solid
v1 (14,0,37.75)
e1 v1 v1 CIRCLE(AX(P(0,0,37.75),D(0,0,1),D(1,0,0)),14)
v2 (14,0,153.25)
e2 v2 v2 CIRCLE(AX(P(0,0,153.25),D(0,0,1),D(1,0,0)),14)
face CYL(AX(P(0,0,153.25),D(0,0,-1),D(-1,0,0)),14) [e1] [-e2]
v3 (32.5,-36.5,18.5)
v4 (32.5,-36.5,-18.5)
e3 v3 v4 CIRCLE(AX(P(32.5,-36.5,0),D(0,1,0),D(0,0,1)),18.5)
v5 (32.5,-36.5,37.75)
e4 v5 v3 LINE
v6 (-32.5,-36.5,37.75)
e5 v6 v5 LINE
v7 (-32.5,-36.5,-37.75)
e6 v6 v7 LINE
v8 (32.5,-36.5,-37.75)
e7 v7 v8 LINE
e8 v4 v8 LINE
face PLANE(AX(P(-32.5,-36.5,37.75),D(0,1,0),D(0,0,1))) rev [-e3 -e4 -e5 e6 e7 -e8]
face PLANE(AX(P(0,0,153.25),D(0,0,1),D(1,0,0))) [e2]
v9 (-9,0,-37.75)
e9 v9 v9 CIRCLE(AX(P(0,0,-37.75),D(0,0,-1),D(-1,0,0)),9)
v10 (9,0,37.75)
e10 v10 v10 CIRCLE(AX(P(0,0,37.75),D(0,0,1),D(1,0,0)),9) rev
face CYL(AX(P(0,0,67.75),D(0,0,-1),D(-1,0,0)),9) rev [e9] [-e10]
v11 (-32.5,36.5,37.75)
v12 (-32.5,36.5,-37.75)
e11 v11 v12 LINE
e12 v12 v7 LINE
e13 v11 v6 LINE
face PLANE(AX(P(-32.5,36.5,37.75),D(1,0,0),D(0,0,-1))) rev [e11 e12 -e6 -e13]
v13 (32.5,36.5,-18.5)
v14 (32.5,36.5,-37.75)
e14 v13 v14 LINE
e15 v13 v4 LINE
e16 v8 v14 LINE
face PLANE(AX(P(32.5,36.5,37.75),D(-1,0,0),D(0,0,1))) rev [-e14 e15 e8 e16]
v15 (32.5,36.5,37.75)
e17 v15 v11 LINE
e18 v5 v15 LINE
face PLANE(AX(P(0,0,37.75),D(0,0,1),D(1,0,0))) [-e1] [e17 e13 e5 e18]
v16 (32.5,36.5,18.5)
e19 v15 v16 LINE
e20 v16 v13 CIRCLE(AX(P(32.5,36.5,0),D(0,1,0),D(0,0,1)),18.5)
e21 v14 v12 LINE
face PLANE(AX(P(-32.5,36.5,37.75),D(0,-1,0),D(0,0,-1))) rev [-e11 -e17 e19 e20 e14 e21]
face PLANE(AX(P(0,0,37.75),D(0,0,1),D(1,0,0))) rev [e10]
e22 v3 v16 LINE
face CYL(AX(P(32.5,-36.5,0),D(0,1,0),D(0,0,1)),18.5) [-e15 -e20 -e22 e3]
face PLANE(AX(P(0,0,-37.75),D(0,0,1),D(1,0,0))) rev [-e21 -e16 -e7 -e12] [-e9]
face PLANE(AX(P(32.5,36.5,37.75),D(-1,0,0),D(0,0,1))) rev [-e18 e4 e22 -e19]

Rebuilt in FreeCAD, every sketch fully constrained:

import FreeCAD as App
import Part
import Sketcher
from FreeCAD import Vector
Q = App.Units.Quantity

doc = App.newDocument("Part")
body = doc.addObject("PartDesign::Body", "Body")

# Sketch on XY plane
sketch1 = body.newObject("Sketcher::SketchObject", "Sketch")
sketch1.AttachmentSupport = (doc.getObject("XY_Plane"), [""])
sketch1.MapMode = "FlatFace"
sketch1.addGeometry([
    Part.LineSegment(Vector(-32, 36, 0), Vector(-32, -36, 0)),
    Part.LineSegment(Vector(-32, -36, 0), Vector(32, -36, 0)),
    Part.LineSegment(Vector(32, -36, 0), Vector(32, 36, 0)),
    Part.LineSegment(Vector(32, 36, 0), Vector(-32, 36, 0)),
], False)
sketch1.addConstraint([
    Sketcher.Constraint("Coincident", 0, 2, 1, 1),
    Sketcher.Constraint("Coincident", 1, 2, 2, 1),
    Sketcher.Constraint("Coincident", 2, 2, 3, 1),
    Sketcher.Constraint("Coincident", 3, 2, 0, 1),
    Sketcher.Constraint("Vertical", 0),
    Sketcher.Constraint("Horizontal", 1),
    Sketcher.Constraint("Vertical", 2),
    Sketcher.Constraint("Horizontal", 3),
    Sketcher.Constraint("Symmetric", 0, 2, 2, 2, -1, 1),
    Sketcher.Constraint("DistanceX", 1, 1, 1, 2, Q("65 mm")),
    Sketcher.Constraint("DistanceY", 0, 2, 0, 1, Q("73 mm")),
])
pad1 = body.newObject("PartDesign::Pad", "Pad")
pad1.Profile = sketch1
pad1.Length = 75.5
pad1.Midplane = True

# Sketch on XY plane
sketch2 = body.newObject("Sketcher::SketchObject", "Sketch001")
sketch2.AttachmentSupport = (doc.getObject("XY_Plane"), [""])
sketch2.MapMode = "FlatFace"
sketch2.AttachmentOffset = App.Placement(Vector(0, 0, -37.75), App.Rotation())
sketch2.addGeometry(Part.Circle(Vector(0, 0, 0), Vector(0, 0, 1), 9), False)
sketch2.addConstraint([
    Sketcher.Constraint("Coincident", 0, 3, -1, 1),
    Sketcher.Constraint("Diameter", 0, Q("18 mm")),
])
pocket1 = body.newObject("PartDesign::Pocket", "Pocket")
pocket1.Profile = sketch2
pocket1.Length = 105.5
pocket1.Reversed = True

# Sketch on XY plane
sketch3 = body.newObject("Sketcher::SketchObject", "Sketch002")
sketch3.AttachmentSupport = (doc.getObject("XY_Plane"), [""])
sketch3.MapMode = "FlatFace"
sketch3.AttachmentOffset = App.Placement(Vector(0, 0, 37.75), App.Rotation())
sketch3.addGeometry(Part.Circle(Vector(0, 0, 0), Vector(0, 0, 1), 14), False)
sketch3.addConstraint([
    Sketcher.Constraint("Coincident", 0, 3, -1, 1),
    Sketcher.Constraint("Diameter", 0, Q("28 mm")),
])
pad2 = body.newObject("PartDesign::Pad", "Pad001")
pad2.Profile = sketch3
pad2.Length = 115.5

# Sketch on XZ plane
sketch4 = body.newObject("Sketcher::SketchObject", "Sketch003")
sketch4.AttachmentSupport = (doc.getObject("XZ_Plane"), [""])
sketch4.MapMode = "FlatFace"
sketch4.AttachmentOffset = App.Placement(Vector(0, 0, -36.5), App.Rotation())
sketch4.addGeometry(Part.Circle(Vector(32, 0, 0), Vector(0, 0, 1), 18), False)
sketch4.addConstraint([
    Sketcher.Constraint("PointOnObject", 0, 3, -1),
    Sketcher.Constraint("Diameter", 0, Q("37 mm")),
    Sketcher.Constraint("DistanceX", -1, 1, 0, 3, Q("32.5 mm")),
])
pad3 = body.newObject("PartDesign::Pad", "Pad002")
pad3.Profile = sketch4
pad3.Length = 73

doc.recompute()
